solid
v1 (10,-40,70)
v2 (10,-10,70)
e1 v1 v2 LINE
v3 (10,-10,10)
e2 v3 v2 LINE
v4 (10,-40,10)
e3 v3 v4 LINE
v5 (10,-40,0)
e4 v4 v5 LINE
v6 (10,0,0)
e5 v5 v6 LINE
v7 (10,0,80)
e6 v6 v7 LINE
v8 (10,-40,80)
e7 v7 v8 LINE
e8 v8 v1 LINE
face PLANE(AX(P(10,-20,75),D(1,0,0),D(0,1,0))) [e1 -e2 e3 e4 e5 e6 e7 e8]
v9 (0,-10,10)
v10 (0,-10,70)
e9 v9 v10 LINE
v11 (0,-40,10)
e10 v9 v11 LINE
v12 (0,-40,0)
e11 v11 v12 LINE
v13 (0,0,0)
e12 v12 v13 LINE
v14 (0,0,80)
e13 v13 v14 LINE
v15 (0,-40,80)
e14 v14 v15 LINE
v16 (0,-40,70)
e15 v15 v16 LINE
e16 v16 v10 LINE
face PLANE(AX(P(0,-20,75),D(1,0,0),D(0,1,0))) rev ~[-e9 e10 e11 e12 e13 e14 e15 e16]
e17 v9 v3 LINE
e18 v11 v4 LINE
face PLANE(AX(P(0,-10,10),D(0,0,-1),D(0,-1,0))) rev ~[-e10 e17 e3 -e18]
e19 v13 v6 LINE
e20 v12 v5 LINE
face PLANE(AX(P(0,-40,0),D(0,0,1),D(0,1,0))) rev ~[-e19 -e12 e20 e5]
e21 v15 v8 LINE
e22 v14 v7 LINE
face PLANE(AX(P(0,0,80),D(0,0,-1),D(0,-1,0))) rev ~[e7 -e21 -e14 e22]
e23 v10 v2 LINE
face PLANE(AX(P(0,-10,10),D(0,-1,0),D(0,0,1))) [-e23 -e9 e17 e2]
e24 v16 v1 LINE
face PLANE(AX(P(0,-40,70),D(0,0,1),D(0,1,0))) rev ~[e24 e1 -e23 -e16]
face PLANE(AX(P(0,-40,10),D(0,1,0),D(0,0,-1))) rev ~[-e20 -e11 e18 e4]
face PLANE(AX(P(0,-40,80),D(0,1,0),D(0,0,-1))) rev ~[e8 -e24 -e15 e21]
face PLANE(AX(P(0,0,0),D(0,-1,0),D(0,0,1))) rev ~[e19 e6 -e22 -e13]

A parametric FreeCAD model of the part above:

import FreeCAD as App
import Part
import Sketcher
from FreeCAD import Vector

doc = App.newDocument("Part")
params = doc.addObject("Spreadsheet::Sheet", "Params")
for row, (alias, value) in enumerate([
    ("sketch1_width", "40 mm"),
    ("sketch1_width2", "30 mm"),
    ("sketch1_height", "10 mm"),
    ("sketch1_height2", "60 mm"),
    ("pad1_length", "10 mm"),
], start=1):
    params.set(f"A{row}", alias)
    params.set(f"B{row}", "=" + value)
    params.setAlias(f"B{row}", alias)

body = doc.addObject("PartDesign::Body", "Body")

# Sketch on YZ plane
sketch1 = body.newObject("Sketcher::SketchObject", "Sketch")
sketch1.AttachmentSupport = (doc.getObject("YZ_Plane"), [""])
sketch1.MapMode = "FlatFace"
sketch1.addGeometry(Part.LineSegment(Vector(0, 80, 0), Vector(-40, 80, 0)), False)
sketch1.addGeometry(Part.LineSegment(Vector(-40, 80, 0), Vector(-40, 70, 0)), False)
sketch1.addGeometry(Part.LineSegment(Vector(-40, 70, 0), Vector(-10, 70, 0)), False)
sketch1.addGeometry(Part.LineSegment(Vector(-10, 70, 0), Vector(-10, 10, 0)), False)
sketch1.addGeometry(Part.LineSegment(Vector(-10, 10, 0), Vector(-40, 10, 0)), False)
sketch1.addGeometry(Part.LineSegment(Vector(-40, 10, 0), Vector(-40, 0, 0)), False)
sketch1.addGeometry(Part.LineSegment(Vector(-40, 0, 0), Vector(0, 0, 0)), False)
sketch1.addGeometry(Part.LineSegment(Vector(0, 0, 0), Vector(0, 80, 0)), False)
sketch1.addConstraint(Sketcher.Constraint("Coincident", 0, 2, 1, 1))
sketch1.addConstraint(Sketcher.Constraint("Coincident", 1, 2, 2, 1))
sketch1.addConstraint(Sketcher.Constraint("Coincident", 2, 2, 3, 1))
sketch1.addConstraint(Sketcher.Constraint("Coincident", 3, 2, 4, 1))
sketch1.addConstraint(Sketcher.Constraint("Coincident", 4, 2, 5, 1))
sketch1.addConstraint(Sketcher.Constraint("Coincident", 5, 2, 6, 1))
sketch1.addConstraint(Sketcher.Constraint("Coincident", 6, 2, 7, 1))
sketch1.addConstraint(Sketcher.Constraint("Coincident", 7, 2, 0, 1))
sketch1.addConstraint(Sketcher.Constraint("Horizontal", 0))
sketch1.addConstraint(Sketcher.Constraint("Vertical", 1))
sketch1.addConstraint(Sketcher.Constraint("Horizontal", 2))
sketch1.addConstraint(Sketcher.Constraint("Vertical", 3))
sketch1.addConstraint(Sketcher.Constraint("Horizontal", 4))
sketch1.addConstraint(Sketcher.Constraint("Vertical", 5))
sketch1.addConstraint(Sketcher.Constraint("Horizontal", 6))
sketch1.addConstraint(Sketcher.Constraint("Vertical", 7))
sketch1.addConstraint(Sketcher.Constraint("Coincident", 6, 2, -1, 1))
sketch1.addConstraint(Sketcher.Constraint("Vertical", 1, 2, 4, 2))
sketch1.addConstraint(Sketcher.Constraint("Equal", 1, 5))
sketch1.addConstraint(Sketcher.Constraint("DistanceX", 0, 2, 0, 1, 40.0))
sketch1.addConstraint(Sketcher.Constraint("DistanceX", 2, 1, 2, 2, 30.0))
sketch1.addConstraint(Sketcher.Constraint("DistanceY", 1, 2, 1, 1, 10.0))
sketch1.addConstraint(Sketcher.Constraint("DistanceY", 3, 2, 3, 1, 60.0))
sketch1.setExpression("Constraints[19]", "Params.sketch1_width")
sketch1.setExpression("Constraints[20]", "Params.sketch1_width2")
sketch1.setExpression("Constraints[21]", "Params.sketch1_height")
sketch1.setExpression("Constraints[22]", "Params.sketch1_height2")
pad1 = body.newObject("PartDesign::Pad", "Pad")
pad1.Profile = sketch1
pad1.setExpression("Length", "Params.pad1_length")

doc.recompute()
